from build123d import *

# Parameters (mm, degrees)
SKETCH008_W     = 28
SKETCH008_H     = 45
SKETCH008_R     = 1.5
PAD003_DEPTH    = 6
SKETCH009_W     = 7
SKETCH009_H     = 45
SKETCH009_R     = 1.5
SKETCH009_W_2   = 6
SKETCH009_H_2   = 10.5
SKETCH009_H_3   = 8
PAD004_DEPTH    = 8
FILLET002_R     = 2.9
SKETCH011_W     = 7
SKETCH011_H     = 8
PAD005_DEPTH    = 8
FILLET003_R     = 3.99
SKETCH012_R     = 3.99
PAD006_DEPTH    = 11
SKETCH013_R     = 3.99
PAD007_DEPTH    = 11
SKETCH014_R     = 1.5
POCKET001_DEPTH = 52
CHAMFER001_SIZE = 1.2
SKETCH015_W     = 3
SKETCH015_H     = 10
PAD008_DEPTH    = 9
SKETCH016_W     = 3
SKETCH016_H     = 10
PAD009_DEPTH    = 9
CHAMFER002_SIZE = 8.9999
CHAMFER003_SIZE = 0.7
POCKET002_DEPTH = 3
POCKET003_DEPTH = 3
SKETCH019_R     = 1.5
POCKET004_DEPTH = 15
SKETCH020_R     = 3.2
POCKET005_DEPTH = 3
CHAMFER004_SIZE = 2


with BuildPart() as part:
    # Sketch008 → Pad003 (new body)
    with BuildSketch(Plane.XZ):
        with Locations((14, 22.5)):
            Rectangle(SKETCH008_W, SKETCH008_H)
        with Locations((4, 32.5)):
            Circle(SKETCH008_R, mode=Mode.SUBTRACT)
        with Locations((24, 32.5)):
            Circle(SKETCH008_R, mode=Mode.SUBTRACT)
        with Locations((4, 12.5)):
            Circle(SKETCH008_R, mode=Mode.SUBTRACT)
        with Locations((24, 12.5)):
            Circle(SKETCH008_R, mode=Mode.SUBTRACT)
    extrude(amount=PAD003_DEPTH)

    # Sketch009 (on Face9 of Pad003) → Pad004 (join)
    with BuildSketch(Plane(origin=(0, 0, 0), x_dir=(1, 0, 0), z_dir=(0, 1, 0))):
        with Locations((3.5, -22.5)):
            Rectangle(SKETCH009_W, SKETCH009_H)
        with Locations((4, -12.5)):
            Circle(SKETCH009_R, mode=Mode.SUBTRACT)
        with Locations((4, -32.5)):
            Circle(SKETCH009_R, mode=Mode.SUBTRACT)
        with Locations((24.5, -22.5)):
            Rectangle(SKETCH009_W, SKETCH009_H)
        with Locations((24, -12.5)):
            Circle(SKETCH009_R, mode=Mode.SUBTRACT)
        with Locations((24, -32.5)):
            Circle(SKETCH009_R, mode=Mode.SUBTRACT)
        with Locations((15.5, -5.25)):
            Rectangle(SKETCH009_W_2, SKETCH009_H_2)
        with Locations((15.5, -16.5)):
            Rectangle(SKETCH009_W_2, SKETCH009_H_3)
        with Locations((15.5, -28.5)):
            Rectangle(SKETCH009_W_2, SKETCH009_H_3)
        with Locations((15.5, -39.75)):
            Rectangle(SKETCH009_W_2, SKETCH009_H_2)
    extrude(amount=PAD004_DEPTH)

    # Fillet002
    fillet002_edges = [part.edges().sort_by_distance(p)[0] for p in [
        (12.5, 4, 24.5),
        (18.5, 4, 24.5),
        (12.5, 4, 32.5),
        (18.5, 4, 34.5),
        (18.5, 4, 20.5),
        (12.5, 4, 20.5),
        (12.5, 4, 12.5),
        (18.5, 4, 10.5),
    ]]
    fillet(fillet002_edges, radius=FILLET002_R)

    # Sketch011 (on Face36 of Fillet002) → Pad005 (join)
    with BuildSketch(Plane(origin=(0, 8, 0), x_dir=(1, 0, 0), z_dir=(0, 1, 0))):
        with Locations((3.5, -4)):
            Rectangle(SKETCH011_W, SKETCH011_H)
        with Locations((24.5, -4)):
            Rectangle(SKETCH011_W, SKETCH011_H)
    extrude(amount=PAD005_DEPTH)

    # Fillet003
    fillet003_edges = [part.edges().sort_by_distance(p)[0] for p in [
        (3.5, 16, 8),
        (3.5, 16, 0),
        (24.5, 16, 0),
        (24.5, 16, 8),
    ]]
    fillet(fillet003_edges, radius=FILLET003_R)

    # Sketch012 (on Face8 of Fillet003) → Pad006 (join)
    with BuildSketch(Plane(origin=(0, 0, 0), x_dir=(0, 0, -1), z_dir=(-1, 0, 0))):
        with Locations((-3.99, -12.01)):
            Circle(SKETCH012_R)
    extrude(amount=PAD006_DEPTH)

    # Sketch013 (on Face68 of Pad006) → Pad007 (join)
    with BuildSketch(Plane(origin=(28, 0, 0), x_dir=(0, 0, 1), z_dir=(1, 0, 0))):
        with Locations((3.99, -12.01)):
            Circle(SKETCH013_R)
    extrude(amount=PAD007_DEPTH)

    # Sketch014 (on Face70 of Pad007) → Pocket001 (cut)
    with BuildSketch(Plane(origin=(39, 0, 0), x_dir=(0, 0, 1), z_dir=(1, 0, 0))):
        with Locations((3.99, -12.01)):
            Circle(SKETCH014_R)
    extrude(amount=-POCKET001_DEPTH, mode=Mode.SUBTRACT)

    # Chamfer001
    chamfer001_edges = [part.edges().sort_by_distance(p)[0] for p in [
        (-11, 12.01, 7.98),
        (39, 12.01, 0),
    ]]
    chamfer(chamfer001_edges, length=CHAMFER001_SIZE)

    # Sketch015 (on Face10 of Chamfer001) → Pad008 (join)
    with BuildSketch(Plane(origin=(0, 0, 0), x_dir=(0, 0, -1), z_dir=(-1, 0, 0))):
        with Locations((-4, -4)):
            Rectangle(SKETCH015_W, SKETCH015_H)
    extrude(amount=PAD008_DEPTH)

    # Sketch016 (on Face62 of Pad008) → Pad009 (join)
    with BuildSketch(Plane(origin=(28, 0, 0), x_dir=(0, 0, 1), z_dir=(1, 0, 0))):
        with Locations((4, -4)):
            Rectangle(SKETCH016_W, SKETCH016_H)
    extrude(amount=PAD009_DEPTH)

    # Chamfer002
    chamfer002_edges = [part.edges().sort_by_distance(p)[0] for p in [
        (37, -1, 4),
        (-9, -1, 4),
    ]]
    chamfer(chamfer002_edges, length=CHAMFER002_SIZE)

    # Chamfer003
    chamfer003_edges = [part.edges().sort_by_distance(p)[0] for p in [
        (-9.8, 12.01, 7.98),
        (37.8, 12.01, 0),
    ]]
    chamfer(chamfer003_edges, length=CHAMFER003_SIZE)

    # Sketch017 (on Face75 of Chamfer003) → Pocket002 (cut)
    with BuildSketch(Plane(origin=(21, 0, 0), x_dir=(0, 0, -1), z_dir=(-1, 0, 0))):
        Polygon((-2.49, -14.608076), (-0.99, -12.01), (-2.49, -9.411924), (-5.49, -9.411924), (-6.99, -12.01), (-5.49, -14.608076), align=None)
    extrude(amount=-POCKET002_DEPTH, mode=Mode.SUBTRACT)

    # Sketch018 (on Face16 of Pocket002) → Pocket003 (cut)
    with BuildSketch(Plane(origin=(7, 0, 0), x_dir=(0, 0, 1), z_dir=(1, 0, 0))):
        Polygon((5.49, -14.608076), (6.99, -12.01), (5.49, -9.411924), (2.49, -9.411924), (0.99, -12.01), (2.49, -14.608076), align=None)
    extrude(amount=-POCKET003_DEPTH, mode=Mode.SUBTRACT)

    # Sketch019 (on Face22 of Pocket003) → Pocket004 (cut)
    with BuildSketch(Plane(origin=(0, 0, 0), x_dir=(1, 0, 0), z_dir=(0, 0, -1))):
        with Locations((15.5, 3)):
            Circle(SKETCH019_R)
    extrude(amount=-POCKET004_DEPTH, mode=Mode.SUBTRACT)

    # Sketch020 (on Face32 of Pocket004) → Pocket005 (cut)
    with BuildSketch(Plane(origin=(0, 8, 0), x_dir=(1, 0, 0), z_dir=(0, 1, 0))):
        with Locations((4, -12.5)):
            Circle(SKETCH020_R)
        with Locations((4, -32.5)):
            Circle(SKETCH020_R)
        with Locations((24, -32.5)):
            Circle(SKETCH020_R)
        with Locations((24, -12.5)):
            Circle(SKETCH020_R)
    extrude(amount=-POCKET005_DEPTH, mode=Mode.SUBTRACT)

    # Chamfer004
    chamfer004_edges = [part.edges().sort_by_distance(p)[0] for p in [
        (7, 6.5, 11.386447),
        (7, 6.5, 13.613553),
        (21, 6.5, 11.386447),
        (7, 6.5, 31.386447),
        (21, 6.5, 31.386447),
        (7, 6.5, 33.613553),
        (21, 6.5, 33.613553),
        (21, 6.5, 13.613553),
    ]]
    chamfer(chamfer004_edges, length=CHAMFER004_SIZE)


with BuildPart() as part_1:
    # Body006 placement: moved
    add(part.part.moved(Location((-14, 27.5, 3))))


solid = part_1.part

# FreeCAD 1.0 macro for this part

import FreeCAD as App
import Part
import Sketcher

V = App.Vector
Q = App.Units.Quantity


def edges_at(feature, points):
    """Names of the edges that pass closest to the given points."""
    edges = feature.Shape.Edges
    near = lambda p: min(range(len(edges)), key=lambda i: edges[i].distToShape(Part.Vertex(*p))[0])
    return sorted({f"Edge{near(p) + 1}" for p in points})


def add_polygon(sketch, points):
    """Adds a closed chain of lines whose ends are joined by coincident constraints."""
    first, n = sketch.GeometryCount, len(points)
    for a, b in zip(points, points[1:] + points[:1]):
        sketch.addGeometry(Part.LineSegment(App.Vector(*a, 0), App.Vector(*b, 0)), False)
    for i in range(n):
        sketch.addConstraint(Sketcher.Constraint("Coincident", first + i, 2, first + (i + 1) % n, 1))

doc = App.newDocument("Part")
body = doc.addObject("PartDesign::Body", "Body")

sketch1 = doc.addObject("Sketcher::SketchObject", "Sketch")
body.addObject(sketch1)
sketch1.AttachmentSupport = (doc.XZ_Plane, [""])
sketch1.MapMode = "FlatFace"
add_polygon(sketch1, [(0, 45), (0, 0), (28, 0), (28, 45)])
sketch1.addGeometry(Part.Circle(V(4, 12.5, 0), V(0, 0, 1), 1.5), False)
sketch1.addGeometry(Part.Circle(V(24, 12.5, 0), V(0, 0, 1), 1.5), False)
sketch1.addGeometry(Part.Circle(V(4, 32.5, 0), V(0, 0, 1), 1.5), False)
sketch1.addGeometry(Part.Circle(V(24, 32.5, 0), V(0, 0, 1), 1.5), False)
sketch1.addConstraint([
    Sketcher.Constraint("Vertical", 0),
    Sketcher.Constraint("Horizontal", 1),
    Sketcher.Constraint("Vertical", 2),
    Sketcher.Constraint("Horizontal", 3),
    Sketcher.Constraint("Coincident", 0, 2, -1, 1),
    Sketcher.Constraint("Equal", 4, 5),
    Sketcher.Constraint("Equal", 5, 6),
    Sketcher.Constraint("Equal", 6, 7),
    Sketcher.Constraint("Horizontal", 4, 3, 5, 3),
    Sketcher.Constraint("Horizontal", 6, 3, 7, 3),
    Sketcher.Constraint("Vertical", 4, 3, 6, 3),
    Sketcher.Constraint("Vertical", 5, 3, 7, 3),
    Sketcher.Constraint("Diameter", 4, Q("3 mm")),
    Sketcher.Constraint("DistanceX", 1, 1, 1, 2, Q("28 mm")),
    Sketcher.Constraint("DistanceY", 0, 2, 0, 1, Q("45 mm")),
    Sketcher.Constraint("DistanceX", -1, 1, 4, 3, Q("4 mm")),
    Sketcher.Constraint("DistanceX", -1, 1, 5, 3, Q("24 mm")),
    Sketcher.Constraint("DistanceY", 4, 3, 6, 3, Q("20 mm")),
    Sketcher.Constraint("DistanceY", -1, 1, 4, 3, Q("12.5 mm")),
])
pad1 = doc.addObject("PartDesign::Pad", "Pad")
body.addObject(pad1)
pad1.Profile = sketch1
pad1.Length = 6

sketch2 = doc.addObject("Sketcher::SketchObject", "Sketch001")
body.addObject(sketch2)
sketch2.AttachmentSupport = (doc.XZ_Plane, [""])
sketch2.MapMode = "FlatFace"
add_polygon(sketch2, [(0, 0), (0, 45), (7, 45), (7, 0)])
sketch2.addGeometry(Part.Circle(V(4, 32.5, 0), V(0, 0, 1), 1.5), False)
sketch2.addGeometry(Part.Circle(V(4, 12.5, 0), V(0, 0, 1), 1.5), False)
add_polygon(sketch2, [(21, 0), (21, 45), (28, 45), (28, 0)])
sketch2.addGeometry(Part.Circle(V(24, 32.5, 0), V(0, 0, 1), 1.5), False)
sketch2.addGeometry(Part.Circle(V(24, 12.5, 0), V(0, 0, 1), 1.5), False)
add_polygon(sketch2, [(12.5, 0), (12.5, 10.5), (18.5, 10.5), (18.5, 0)])
add_polygon(sketch2, [(12.5, 12.5), (12.5, 20.5), (18.5, 20.5), (18.5, 12.5)])
add_polygon(sketch2, [(12.5, 24.5), (12.5, 32.5), (18.5, 32.5), (18.5, 24.5)])
add_polygon(sketch2, [(12.5, 34.5), (12.5, 45), (18.5, 45), (18.5, 34.5)])
sketch2.addConstraint([
    Sketcher.Constraint("Vertical", 0),
    Sketcher.Constraint("Horizontal", 1),
    Sketcher.Constraint("Vertical", 2),
    Sketcher.Constraint("Horizontal", 3),
    Sketcher.Constraint("Vertical", 6),
    Sketcher.Constraint("Horizontal", 7),
    Sketcher.Constraint("Vertical", 8),
    Sketcher.Constraint("Horizontal", 9),
    Sketcher.Constraint("Vertical", 12),
    Sketcher.Constraint("Horizontal", 13),
    Sketcher.Constraint("Vertical", 14),
    Sketcher.Constraint("Horizontal", 15),
    Sketcher.Constraint("Vertical", 16),
    Sketcher.Constraint("Horizontal", 17),
    Sketcher.Constraint("Vertical", 18),
    Sketcher.Constraint("Horizontal", 19),
    Sketcher.Constraint("Vertical", 20),
    Sketcher.Constraint("Horizontal", 21),
    Sketcher.Constraint("Vertical", 22),
    Sketcher.Constraint("Horizontal", 23),
    Sketcher.Constraint("Vertical", 24),
    Sketcher.Constraint("Horizontal", 25),
    Sketcher.Constraint("Vertical", 26),
    Sketcher.Constraint("Horizontal", 27),
    Sketcher.Constraint("Coincident", 3, 2, -1, 1),
    Sketcher.Constraint("Equal", 4, 5),
    Sketcher.Constraint("Equal", 5, 10),
    Sketcher.Constraint("Equal", 10, 11),
    Sketcher.Constraint("PointOnObject", 8, 2, -1),
    Sketcher.Constraint("PointOnObject", 14, 2, -1),
    Sketcher.Constraint("Horizontal", 4, 3, 10, 3),
    Sketcher.Constraint("Horizontal", 5, 3, 11, 3),
    Sketcher.Constraint("Horizontal", 1, 2, 6, 2),
    Sketcher.Constraint("Horizontal", 11, 3, 18, 2),
    Sketcher.Constraint("Horizontal", 10, 3, 20, 2),
    Sketcher.Constraint("Horizontal", 7, 2, 24, 2),
    Sketcher.Constraint("Vertical", 4, 3, 5, 3),
    Sketcher.Constraint("Vertical", 10, 3, 11, 3),
    Sketcher.Constraint("Vertical", 15, 2, 16, 2),
    Sketcher.Constraint("Vertical", 14, 2, 17, 2),
    Sketcher.Constraint("Vertical", 19, 2, 20, 2),
    Sketcher.Constraint("Vertical", 18, 2, 21, 2),
    Sketcher.Constraint("Vertical", 23, 2, 24, 2),
    Sketcher.Constraint("Vertical", 22, 2, 25, 2),
    Sketcher.Constraint("Equal", 3, 7),
    Sketcher.Constraint("Equal", 18, 20),
    Sketcher.Constraint("Equal", 14, 24),
    Sketcher.Constraint("Diameter", 4, Q("3 mm")),
    Sketcher.Constraint("DistanceX", 1, 1, 1, 2, Q("7 mm")),
    Sketcher.Constraint("DistanceX", 13, 1, 13, 2, Q("6 mm")),
    Sketcher.Constraint("DistanceY", 0, 1, 0, 2, Q("45 mm")),
    Sketcher.Constraint("DistanceY", 16, 1, 16, 2, Q("8 mm")),
    Sketcher.Constraint("DistanceY", 12, 1, 12, 2, Q("10.5 mm")),
    Sketcher.Constraint("DistanceX", -1, 1, 4, 3, Q("4 mm")),
    Sketcher.Constraint("DistanceX", -1, 1, 10, 3, Q("24 mm")),
    Sketcher.Constraint("DistanceX", -1, 1, 6, 2, Q("21 mm")),
    Sketcher.Constraint("DistanceY", 5, 3, 4, 3, Q("20 mm")),
    Sketcher.Constraint("DistanceY", 12, 2, 5, 3, Q("2 mm")),
    Sketcher.Constraint("DistanceX", -1, 1, 12, 2, Q("12.5 mm")),
])
pad2 = doc.addObject("PartDesign::Pad", "Pad001")
body.addObject(pad2)
pad2.Profile = sketch2
pad2.Length = 8
pad2.Reversed = True
doc.recompute()

fillet = doc.addObject("PartDesign::Fillet", "Fillet")
body.addObject(fillet)
fillet.Base = (pad2, edges_at(pad2, [
    (12.5, 4, 24.5),
    (18.5, 4, 24.5),
    (12.5, 4, 32.5),
    (18.5, 4, 34.5),
    (18.5, 4, 20.5),
    (12.5, 4, 20.5),
    (12.5, 4, 12.5),
    (18.5, 4, 10.5),
]))
fillet.Radius = 2.9

sketch3 = doc.addObject("Sketcher::SketchObject", "Sketch002")
body.addObject(sketch3)
sketch3.AttachmentSupport = (doc.XZ_Plane, [""])
sketch3.MapMode = "FlatFace"
sketch3.AttachmentOffset = App.Placement(V(0, 0, -8), App.Rotation())
add_polygon(sketch3, [(0, 0), (0, 8), (7, 8), (7, 0)])
add_polygon(sketch3, [(21, 0), (21, 8), (28, 8), (28, 0)])
sketch3.addConstraint([
    Sketcher.Constraint("Vertical", 0),
    Sketcher.Constraint("Horizontal", 1),
    Sketcher.Constraint("Vertical", 2),
    Sketcher.Constraint("Horizontal", 3),
    Sketcher.Constraint("Vertical", 4),
    Sketcher.Constraint("Horizontal", 5),
    Sketcher.Constraint("Vertical", 6),
    Sketcher.Constraint("Horizontal", 7),
    Sketcher.Constraint("Coincident", 3, 2, -1, 1),
    Sketcher.Constraint("PointOnObject", 6, 2, -1),
    Sketcher.Constraint("Horizontal", 1, 2, 4, 2),
    Sketcher.Constraint("Equal", 3, 5),
    Sketcher.Constraint("DistanceX", 1, 1, 1, 2, Q("7 mm")),
    Sketcher.Constraint("DistanceY", 0, 1, 0, 2, Q("8 mm")),
    Sketcher.Constraint("DistanceX", -1, 1, 4, 2, Q("21 mm")),
])
pad3 = doc.addObject("PartDesign::Pad", "Pad002")
body.addObject(pad3)
pad3.Profile = sketch3
pad3.Length = 8
pad3.Reversed = True
doc.recompute()

fillet2 = doc.addObject("PartDesign::Fillet", "Fillet001")
body.addObject(fillet2)
fillet2.Base = (pad3, edges_at(pad3, [
    (3.5, 16, 8),
    (3.5, 16, 0),
    (24.5, 16, 0),
    (24.5, 16, 8),
]))
fillet2.Radius = 3.99

sketch4 = doc.addObject("Sketcher::SketchObject", "Sketch003")
body.addObject(sketch4)
sketch4.AttachmentSupport = (doc.YZ_Plane, [""])
sketch4.MapMode = "FlatFace"
sketch4.addGeometry(Part.Circle(V(12, 4, 0), V(0, 0, 1), 4), False)
sketch4.addConstraint([
    Sketcher.Constraint("Diameter", 0, Q("7.98 mm")),
    Sketcher.Constraint("DistanceX", -1, 1, 0, 3, Q("12.01 mm")),
    Sketcher.Constraint("DistanceY", -1, 1, 0, 3, Q("3.99 mm")),
])
pad4 = doc.addObject("PartDesign::Pad", "Pad003")
body.addObject(pad4)
pad4.Profile = sketch4
pad4.Length = 11
pad4.Reversed = True

sketch5 = doc.addObject("Sketcher::SketchObject", "Sketch004")
body.addObject(sketch5)
sketch5.AttachmentSupport = (doc.YZ_Plane, [""])
sketch5.MapMode = "FlatFace"
sketch5.AttachmentOffset = App.Placement(V(0, 0, 28), App.Rotation())
sketch5.addGeometry(Part.Circle(V(12, 4, 0), V(0, 0, 1), 4), False)
sketch5.addConstraint([
    Sketcher.Constraint("Diameter", 0, Q("7.98 mm")),
    Sketcher.Constraint("DistanceX", -1, 1, 0, 3, Q("12.01 mm")),
    Sketcher.Constraint("DistanceY", -1, 1, 0, 3, Q("3.99 mm")),
])
pad5 = doc.addObject("PartDesign::Pad", "Pad004")
body.addObject(pad5)
pad5.Profile = sketch5
pad5.Length = 11

sketch6 = doc.addObject("Sketcher::SketchObject", "Sketch005")
body.addObject(sketch6)
sketch6.AttachmentSupport = (doc.YZ_Plane, [""])
sketch6.MapMode = "FlatFace"
sketch6.AttachmentOffset = App.Placement(V(0, 0, 39), App.Rotation())
sketch6.addGeometry(Part.Circle(V(12, 4, 0), V(0, 0, 1), 1.5), False)
sketch6.addConstraint([
    Sketcher.Constraint("Diameter", 0, Q("3 mm")),
    Sketcher.Constraint("DistanceX", -1, 1, 0, 3, Q("12.01 mm")),
    Sketcher.Constraint("DistanceY", -1, 1, 0, 3, Q("3.99 mm")),
])
pocket1 = doc.addObject("PartDesign::Pocket", "Pocket")
body.addObject(pocket1)
pocket1.Profile = sketch6
pocket1.Length = 52
doc.recompute()

chamfer = doc.addObject("PartDesign::Chamfer", "Chamfer")
body.addObject(chamfer)
chamfer.Base = (pocket1, edges_at(pocket1, [(-11, 12.01, 7.98), (39, 12.01, 0)]))
chamfer.Size = 1.2

sketch7 = doc.addObject("Sketcher::SketchObject", "Sketch006")
body.addObject(sketch7)
sketch7.AttachmentSupport = (doc.YZ_Plane, [""])
sketch7.MapMode = "FlatFace"
add_polygon(sketch7, [(-1, 5.5), (9, 5.5), (9, 2.5), (-1, 2.5)])
sketch7.addConstraint([
    Sketcher.Constraint("Horizontal", 0),
    Sketcher.Constraint("Vertical", 1),
    Sketcher.Constraint("Horizontal", 2),
    Sketcher.Constraint("Vertical", 3),
    Sketcher.Constraint("DistanceX", 0, 1, 0, 2, Q("10 mm")),
    Sketcher.Constraint("DistanceY", 1, 2, 1, 1, Q("3 mm")),
    Sketcher.Constraint("DistanceX", -1, 1, 0, 2, Q("9 mm")),
    Sketcher.Constraint("DistanceY", -1, 1, 0, 2, Q("5.5 mm")),
])
pad6 = doc.addObject("PartDesign::Pad", "Pad005")
body.addObject(pad6)
pad6.Profile = sketch7
pad6.Length = 9
pad6.Reversed = True

sketch8 = doc.addObject("Sketcher::SketchObject", "Sketch007")
body.addObject(sketch8)
sketch8.AttachmentSupport = (doc.YZ_Plane, [""])
sketch8.MapMode = "FlatFace"
sketch8.AttachmentOffset = App.Placement(V(0, 0, 28), App.Rotation())
add_polygon(sketch8, [(-1, 2.5), (9, 2.5), (9, 5.5), (-1, 5.5)])
sketch8.addConstraint([
    Sketcher.Constraint("Horizontal", 0),
    Sketcher.Constraint("Vertical", 1),
    Sketcher.Constraint("Horizontal", 2),
    Sketcher.Constraint("Vertical", 3),
    Sketcher.Constraint("DistanceX", 0, 1, 0, 2, Q("10 mm")),
    Sketcher.Constraint("DistanceY", 1, 1, 1, 2, Q("3 mm")),
    Sketcher.Constraint("DistanceX", -1, 1, 0, 2, Q("9 mm")),
    Sketcher.Constraint("DistanceY", -1, 1, 0, 2, Q("2.5 mm")),
])
pad7 = doc.addObject("PartDesign::Pad", "Pad006")
body.addObject(pad7)
pad7.Profile = sketch8
pad7.Length = 9
doc.recompute()

chamfer2 = doc.addObject("PartDesign::Chamfer", "Chamfer001")
body.addObject(chamfer2)
chamfer2.Base = (pad7, edges_at(pad7, [(37, -1, 4), (-9, -1, 4)]))
chamfer2.Size = 8.9999
doc.recompute()

chamfer3 = doc.addObject("PartDesign::Chamfer", "Chamfer002")
body.addObject(chamfer3)
chamfer3.Base = (chamfer2, edges_at(chamfer2, [(-9.8, 12.01, 7.98), (37.8, 12.01, 0)]))
chamfer3.Size = 0.7

sketch9 = doc.addObject("Sketcher::SketchObject", "Sketch008")
body.addObject(sketch9)
sketch9.AttachmentSupport = (doc.YZ_Plane, [""])
sketch9.MapMode = "FlatFace"
sketch9.AttachmentOffset = App.Placement(V(0, 0, 21), App.Rotation())
add_polygon(sketch9, [(14.6, 2.5), (12, 1), (9.4, 2.5), (9.4, 5.5), (12, 7), (14.6, 5.5)])
sketch9.addConstraint([
    Sketcher.Constraint("Vertical", 2),
    Sketcher.Constraint("Vertical", 5),
    Sketcher.Constraint("Parallel", 0, 3),
    Sketcher.Constraint("Parallel", 1, 4),
    Sketcher.Constraint("Horizontal", 2, 2, 4, 2),
    Sketcher.Constraint("Horizontal", 1, 2, 5, 2),
    Sketcher.Constraint("Vertical", 0, 2, 3, 2),
    Sketcher.Constraint("DistanceY", 2, 1, 2, 2, Q("3 mm")),
    Sketcher.Constraint("Angle", 0, Q("-149.999998 deg")),
    Sketcher.Constraint("Distance", 0, Q("3 mm")),
    Sketcher.Constraint("DistanceX", -1, 1, 0, 2, Q("12.01 mm")),
    Sketcher.Constraint("DistanceY", -1, 1, 0, 2, Q("0.99 mm")),
])
pocket2 = doc.addObject("PartDesign::Pocket", "Pocket001")
body.addObject(pocket2)
pocket2.Profile = sketch9
pocket2.Length = 3
pocket2.Reversed = True

sketch10 = doc.addObject("Sketcher::SketchObject", "Sketch009")
body.addObject(sketch10)
sketch10.AttachmentSupport = (doc.YZ_Plane, [""])
sketch10.MapMode = "FlatFace"
sketch10.AttachmentOffset = App.Placement(V(0, 0, 7), App.Rotation())
add_polygon(sketch10, [(14.6, 5.5), (12, 7), (9.4, 5.5), (9.4, 2.5), (12, 1), (14.6, 2.5)])
sketch10.addConstraint([
    Sketcher.Constraint("Vertical", 2),
    Sketcher.Constraint("Vertical", 5),
    Sketcher.Constraint("Parallel", 0, 3),
    Sketcher.Constraint("Parallel", 1, 4),
    Sketcher.Constraint("Horizontal", 2, 2, 4, 2),
    Sketcher.Constraint("Horizontal", 1, 2, 5, 2),
    Sketcher.Constraint("Vertical", 0, 2, 3, 2),
    Sketcher.Constraint("DistanceY", 2, 2, 2, 1, Q("3 mm")),
    Sketcher.Constraint("Angle", 0, Q("149.999998 deg")),
    Sketcher.Constraint("Distance", 0, Q("3 mm")),
    Sketcher.Constraint("DistanceX", -1, 1, 0, 2, Q("12.01 mm")),
    Sketcher.Constraint("DistanceY", -1, 1, 0, 2, Q("6.99 mm")),
])
pocket3 = doc.addObject("PartDesign::Pocket", "Pocket002")
body.addObject(pocket3)
pocket3.Profile = sketch10
pocket3.Length = 3

sketch11 = doc.addObject("Sketcher::SketchObject", "Sketch010")
body.addObject(sketch11)
sketch11.AttachmentSupport = (doc.XY_Plane, [""])
sketch11.MapMode = "FlatFace"
sketch11.addGeometry(Part.Circle(V(15.5, -3, 0), V(0, 0, 1), 1.5), False)
sketch11.addConstraint([
    Sketcher.Constraint("Diameter", 0, Q("3 mm")),
    Sketcher.Constraint("DistanceY", 0, 3, -1, 1, Q("3 mm")),
    Sketcher.Constraint("DistanceX", -1, 1, 0, 3, Q("15.5 mm")),
])
pocket4 = doc.addObject("PartDesign::Pocket", "Pocket003")
body.addObject(pocket4)
pocket4.Profile = sketch11
pocket4.Length = 15
pocket4.Reversed = True

sketch12 = doc.addObject("Sketcher::SketchObject", "Sketch011")
body.addObject(sketch12)
sketch12.AttachmentSupport = (doc.XZ_Plane, [""])
sketch12.MapMode = "FlatFace"
sketch12.AttachmentOffset = App.Placement(V(0, 0, -8), App.Rotation())
sketch12.addGeometry([
    Part.Circle(V(4, 12.5, 0), V(0, 0, 1), 3.2),
    Part.Circle(V(4, 32.5, 0), V(0, 0, 1), 3.2),
    Part.Circle(V(24, 32.5, 0), V(0, 0, 1), 3.2),
    Part.Circle(V(24, 12.5, 0), V(0, 0, 1), 3.2),
], False)
sketch12.addConstraint([
    Sketcher.Constraint("Equal", 0, 1),
    Sketcher.Constraint("Equal", 1, 2),
    Sketcher.Constraint("Equal", 2, 3),
    Sketcher.Constraint("Horizontal", 1, 3, 2, 3),
    Sketcher.Constraint("Horizontal", 0, 3, 3, 3),
    Sketcher.Constraint("Vertical", 0, 3, 1, 3),
    Sketcher.Constraint("Vertical", 2, 3, 3, 3),
    Sketcher.Constraint("Diameter", 0, Q("6.4 mm")),
    Sketcher.Constraint("DistanceX", -1, 1, 0, 3, Q("4 mm")),
    Sketcher.Constraint("DistanceX", -1, 1, 2, 3, Q("24 mm")),
    Sketcher.Constraint("DistanceY", 0, 3, 1, 3, Q("20 mm")),
    Sketcher.Constraint("DistanceY", -1, 1, 0, 3, Q("12.5 mm")),
])
pocket5 = doc.addObject("PartDesign::Pocket", "Pocket004")
body.addObject(pocket5)
pocket5.Profile = sketch12
pocket5.Length = 3
pocket5.Reversed = True
doc.recompute()

chamfer4 = doc.addObject("PartDesign::Chamfer", "Chamfer003")
body.addObject(chamfer4)
chamfer4.Base = (pocket5, edges_at(pocket5, [
    (7, 6.5, 11.386),
    (7, 6.5, 13.614),
    (21, 6.5, 11.386),
    (7, 6.5, 31.386),
    (21, 6.5, 31.386),
    (7, 6.5, 33.614),
    (21, 6.5, 33.614),
    (21, 6.5, 13.614),
]))
chamfer4.Size = 2
body2 = doc.addObject("PartDesign::Body", "Body001")
doc.recompute()

body.Placement = App.Placement(V(-14, 27.5, 3), App.Rotation(V(0, 0, 1), 0))
boolean = doc.addObject("PartDesign::Boolean", "Boolean")
body2.addObject(boolean)
boolean.Type = "Fuse"
boolean.addObjects([body])

doc.recompute()
